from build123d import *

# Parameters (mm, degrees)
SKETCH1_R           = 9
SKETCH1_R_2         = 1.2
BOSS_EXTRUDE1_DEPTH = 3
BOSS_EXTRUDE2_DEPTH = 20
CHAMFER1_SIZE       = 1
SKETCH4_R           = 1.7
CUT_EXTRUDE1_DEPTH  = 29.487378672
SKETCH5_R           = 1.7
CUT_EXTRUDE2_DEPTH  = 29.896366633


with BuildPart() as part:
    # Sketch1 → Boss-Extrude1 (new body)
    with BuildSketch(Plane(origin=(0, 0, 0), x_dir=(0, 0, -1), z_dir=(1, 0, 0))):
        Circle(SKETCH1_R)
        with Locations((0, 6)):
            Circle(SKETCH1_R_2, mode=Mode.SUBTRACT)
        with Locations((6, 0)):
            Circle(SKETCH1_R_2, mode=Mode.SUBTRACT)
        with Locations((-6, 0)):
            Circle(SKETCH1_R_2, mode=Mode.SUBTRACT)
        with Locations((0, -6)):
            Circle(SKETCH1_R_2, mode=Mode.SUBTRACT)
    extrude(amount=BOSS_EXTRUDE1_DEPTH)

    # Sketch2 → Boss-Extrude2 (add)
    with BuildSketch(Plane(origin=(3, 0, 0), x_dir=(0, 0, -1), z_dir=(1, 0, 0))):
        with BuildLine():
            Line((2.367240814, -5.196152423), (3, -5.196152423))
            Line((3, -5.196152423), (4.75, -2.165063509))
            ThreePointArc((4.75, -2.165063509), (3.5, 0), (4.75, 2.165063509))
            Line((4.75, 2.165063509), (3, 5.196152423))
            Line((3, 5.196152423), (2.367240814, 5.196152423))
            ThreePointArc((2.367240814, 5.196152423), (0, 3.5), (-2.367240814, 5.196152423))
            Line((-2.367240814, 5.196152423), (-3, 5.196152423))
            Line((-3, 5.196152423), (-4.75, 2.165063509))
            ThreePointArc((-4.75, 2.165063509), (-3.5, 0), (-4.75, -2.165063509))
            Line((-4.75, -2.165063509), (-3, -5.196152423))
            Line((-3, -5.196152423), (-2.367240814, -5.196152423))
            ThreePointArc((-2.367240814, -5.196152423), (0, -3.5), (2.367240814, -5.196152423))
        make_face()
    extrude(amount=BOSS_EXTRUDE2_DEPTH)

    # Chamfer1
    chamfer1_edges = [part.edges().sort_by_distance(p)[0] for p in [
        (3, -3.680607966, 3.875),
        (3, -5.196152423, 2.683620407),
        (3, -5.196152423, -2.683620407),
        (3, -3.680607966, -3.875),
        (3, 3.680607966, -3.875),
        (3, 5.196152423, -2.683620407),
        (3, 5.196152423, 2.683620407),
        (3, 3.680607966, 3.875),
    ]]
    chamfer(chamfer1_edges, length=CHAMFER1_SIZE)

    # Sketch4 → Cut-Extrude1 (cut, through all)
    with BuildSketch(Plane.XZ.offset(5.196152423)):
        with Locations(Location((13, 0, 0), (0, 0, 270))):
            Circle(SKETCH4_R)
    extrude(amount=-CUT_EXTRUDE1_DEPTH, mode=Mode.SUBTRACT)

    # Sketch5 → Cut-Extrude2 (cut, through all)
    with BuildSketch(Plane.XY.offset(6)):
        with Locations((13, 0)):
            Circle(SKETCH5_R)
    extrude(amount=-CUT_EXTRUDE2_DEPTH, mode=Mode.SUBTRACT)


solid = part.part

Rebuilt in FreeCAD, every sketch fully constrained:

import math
import FreeCAD as App
import Part
import Sketcher
from FreeCAD import Vector
Q = App.Units.Quantity


def edges_at(feature, points):
    """Names of the edges that pass closest to the given points."""
    edges = feature.Shape.Edges
    near = lambda p: min(range(len(edges)), key=lambda i: edges[i].distToShape(Part.Vertex(*p))[0])
    return sorted({f"Edge{near(p) + 1}" for p in points})

doc = App.newDocument("Part")
body = doc.addObject("PartDesign::Body", "Body")

sketch1 = body.newObject("Sketcher::SketchObject", "Sketch")
sketch1.AttachmentSupport = (doc.getObject("YZ_Plane"), [""])
sketch1.MapMode = "FlatFace"
sketch1.addGeometry(Part.Circle(Vector(0, 0, 0), Vector(0, 0, 1), 9), False)
sketch1.addGeometry(Part.Circle(Vector(-6, 0, 0), Vector(0, 0, 1), 1.2), False)
sketch1.addGeometry(Part.Circle(Vector(0, 6, 0), Vector(0, 0, 1), 1.2), False)
sketch1.addGeometry(Part.Circle(Vector(0, -6, 0), Vector(0, 0, 1), 1.2), False)
sketch1.addGeometry(Part.Circle(Vector(6, 0, 0), Vector(0, 0, 1), 1.2), False)
sketch1.addConstraint(Sketcher.Constraint("Coincident", 0, 3, -1, 1))
sketch1.addConstraint(Sketcher.Constraint("Equal", 1, 2))
sketch1.addConstraint(Sketcher.Constraint("Equal", 2, 3))
sketch1.addConstraint(Sketcher.Constraint("Equal", 3, 4))
sketch1.addConstraint(Sketcher.Constraint("Symmetric", 2, 3, 3, 3, -1, 1))
sketch1.addConstraint(Sketcher.Constraint("Symmetric", 1, 3, 4, 3, -1, 1))
sketch1.addConstraint(Sketcher.Constraint("PointOnObject", 1, 3, -1))
sketch1.addConstraint(Sketcher.Constraint("PointOnObject", 2, 3, -2))
sketch1.addConstraint(Sketcher.Constraint("Diameter", 0, Q("18 mm")))
sketch1.addConstraint(Sketcher.Constraint("Diameter", 1, Q("2.4 mm")))
sketch1.addConstraint(Sketcher.Constraint("DistanceX", 1, 3, -1, 1, Q("6 mm")))
sketch1.addConstraint(Sketcher.Constraint("DistanceY", -1, 1, 2, 3, Q("6 mm")))
pad1 = body.newObject("PartDesign::Pad", "Pad")
pad1.Profile = sketch1
pad1.Length = 3

sketch2 = body.newObject("Sketcher::SketchObject", "Sketch001")
sketch2.AttachmentSupport = (doc.getObject("YZ_Plane"), [""])
sketch2.MapMode = "FlatFace"
sketch2.AttachmentOffset = App.Placement(Vector(0, 0, 3), App.Rotation())
sketch2.addGeometry(Part.LineSegment(Vector(-5.2, -2.4, 0), Vector(-5.2, -3, 0)), False)
sketch2.addGeometry(Part.LineSegment(Vector(-5.2, -3, 0), Vector(-2.2, -4.8, 0)), False)
sketch2.addGeometry(Part.ArcOfCircle(Part.Circle(Vector(0, -6, 0), Vector(0, 0, 1), 2.5), math.radians(30), math.radians(150)), False)
sketch2.addGeometry(Part.LineSegment(Vector(2.2, -4.8, 0), Vector(5.2, -3, 0)), False)
sketch2.addGeometry(Part.LineSegment(Vector(5.2, -3, 0), Vector(5.2, -2.4, 0)), False)
sketch2.addGeometry(Part.ArcOfCircle(Part.Circle(Vector(6, 0, 0), Vector(0, 0, 1), 2.5), math.radians(109), math.radians(251)), False)
sketch2.addGeometry(Part.LineSegment(Vector(5.2, 2.4, 0), Vector(5.2, 3, 0)), False)
sketch2.addGeometry(Part.LineSegment(Vector(5.2, 3, 0), Vector(2.2, 4.8, 0)), False)
sketch2.addGeometry(Part.ArcOfCircle(Part.Circle(Vector(0, 6, 0), Vector(0, 0, 1), 2.5), math.radians(-150), math.radians(-30)), False)
sketch2.addGeometry(Part.LineSegment(Vector(-2.2, 4.8, 0), Vector(-5.2, 3, 0)), False)
sketch2.addGeometry(Part.LineSegment(Vector(-5.2, 3, 0), Vector(-5.2, 2.4, 0)), False)
sketch2.addGeometry(Part.ArcOfCircle(Part.Circle(Vector(-6, 0, 0), Vector(0, 0, 1), 2.5), math.radians(-71), math.radians(71)), False)
sketch2.addConstraint(Sketcher.Constraint("Coincident", 0, 2, 1, 1))
sketch2.addConstraint(Sketcher.Constraint("Coincident", 1, 2, 2, 2))
sketch2.addConstraint(Sketcher.Constraint("Coincident", 2, 1, 3, 1))
sketch2.addConstraint(Sketcher.Constraint("Coincident", 3, 2, 4, 1))
sketch2.addConstraint(Sketcher.Constraint("Coincident", 4, 2, 5, 2))
sketch2.addConstraint(Sketcher.Constraint("Coincident", 5, 1, 6, 1))
sketch2.addConstraint(Sketcher.Constraint("Coincident", 6, 2, 7, 1))
sketch2.addConstraint(Sketcher.Constraint("Coincident", 7, 2, 8, 2))
sketch2.addConstraint(Sketcher.Constraint("Coincident", 8, 1, 9, 1))
sketch2.addConstraint(Sketcher.Constraint("Coincident", 9, 2, 10, 1))
sketch2.addConstraint(Sketcher.Constraint("Coincident", 10, 2, 11, 2))
sketch2.addConstraint(Sketcher.Constraint("Coincident", 11, 1, 0, 1))
sketch2.addConstraint(Sketcher.Constraint("Vertical", 0))
sketch2.addConstraint(Sketcher.Constraint("Vertical", 4))
sketch2.addConstraint(Sketcher.Constraint("Vertical", 6))
sketch2.addConstraint(Sketcher.Constraint("Vertical", 10))
sketch2.addConstraint(Sketcher.Constraint("Equal", 2, 5))
sketch2.addConstraint(Sketcher.Constraint("Equal", 5, 8))
sketch2.addConstraint(Sketcher.Constraint("Equal", 8, 11))
sketch2.addConstraint(Sketcher.Constraint("Symmetric", 2, 3, 8, 3, -1, 1))
sketch2.addConstraint(Sketcher.Constraint("Symmetric", 5, 3, 11, 3, -1, 1))
sketch2.addConstraint(Sketcher.Constraint("Symmetric", 0, 2, 6, 2, -1, 1))
sketch2.addConstraint(Sketcher.Constraint("Symmetric", 3, 2, 9, 2, -1, 1))
sketch2.addConstraint(Sketcher.Constraint("Symmetric", 1, 2, 2, 1, -2))
sketch2.addConstraint(Sketcher.Constraint("Symmetric", 0, 2, 3, 2, -2))
sketch2.addConstraint(Sketcher.Constraint("PointOnObject", 5, 3, -1))
sketch2.addConstraint(Sketcher.Constraint("Parallel", 1, 7))
sketch2.addConstraint(Sketcher.Constraint("Parallel", 3, 9))
sketch2.addConstraint(Sketcher.Constraint("Radius", 2, Q("2.5 mm")))
sketch2.addConstraint(Sketcher.Constraint("Angle", 1, Q("-30 deg")))
sketch2.addConstraint(Sketcher.Constraint("DistanceY", 2, 3, -1, 1, Q("6 mm")))
sketch2.addConstraint(Sketcher.Constraint("DistanceX", -1, 1, 5, 3, Q("6 mm")))
sketch2.addConstraint(Sketcher.Constraint("DistanceY", 0, 2, -1, 1, Q("3 mm")))
sketch2.addConstraint(Sketcher.Constraint("Distance", 1, Q("3.5 mm")))
pad2 = body.newObject("PartDesign::Pad", "Pad001")
pad2.Profile = sketch2
pad2.Length = 20
doc.recompute()

chamfer = body.newObject("PartDesign::Chamfer", "Chamfer")
chamfer.Base = (pad2, edges_at(pad2, [
    (3, -3.681, 3.875),
    (3, -5.196, 2.684),
    (3, -5.196, -2.684),
    (3, -3.681, -3.875),
    (3, 3.681, -3.875),
    (3, 5.196, -2.684),
    (3, 5.196, 2.684),
    (3, 3.681, 3.875),
]))
chamfer.Size = 1

sketch3 = body.newObject("Sketcher::SketchObject", "Sketch002")
sketch3.AttachmentSupport = (doc.getObject("XZ_Plane"), [""])
sketch3.MapMode = "FlatFace"
sketch3.AttachmentOffset = App.Placement(Vector(0, 0, 5.196152), App.Rotation())
sketch3.addGeometry(Part.Circle(Vector(13, 0, 0), Vector(0, 0, 1), 1.7), False)
sketch3.addConstraint(Sketcher.Constraint("PointOnObject", 0, 3, -1))
sketch3.addConstraint(Sketcher.Constraint("Diameter", 0, Q("3.4 mm")))
sketch3.addConstraint(Sketcher.Constraint("DistanceX", -1, 1, 0, 3, Q("13 mm")))
pocket1 = body.newObject("PartDesign::Pocket", "Pocket")
pocket1.Profile = sketch3
pocket1.Type = "ThroughAll"

sketch4 = body.newObject("Sketcher::SketchObject", "Sketch003")
sketch4.AttachmentSupport = (doc.getObject("XY_Plane"), [""])
sketch4.MapMode = "FlatFace"
sketch4.AttachmentOffset = App.Placement(Vector(0, 0, 6), App.Rotation())
sketch4.addGeometry(Part.Circle(Vector(13, 0, 0), Vector(0, 0, 1), 1.7), False)
sketch4.addConstraint(Sketcher.Constraint("PointOnObject", 0, 3, -1))
sketch4.addConstraint(Sketcher.Constraint("Diameter", 0, Q("3.4 mm")))
sketch4.addConstraint(Sketcher.Constraint("DistanceX", -1, 1, 0, 3, Q("13 mm")))
pocket2 = body.newObject("PartDesign::Pocket", "Pocket001")
pocket2.Profile = sketch4
pocket2.Type = "ThroughAll"

doc.recompute()
